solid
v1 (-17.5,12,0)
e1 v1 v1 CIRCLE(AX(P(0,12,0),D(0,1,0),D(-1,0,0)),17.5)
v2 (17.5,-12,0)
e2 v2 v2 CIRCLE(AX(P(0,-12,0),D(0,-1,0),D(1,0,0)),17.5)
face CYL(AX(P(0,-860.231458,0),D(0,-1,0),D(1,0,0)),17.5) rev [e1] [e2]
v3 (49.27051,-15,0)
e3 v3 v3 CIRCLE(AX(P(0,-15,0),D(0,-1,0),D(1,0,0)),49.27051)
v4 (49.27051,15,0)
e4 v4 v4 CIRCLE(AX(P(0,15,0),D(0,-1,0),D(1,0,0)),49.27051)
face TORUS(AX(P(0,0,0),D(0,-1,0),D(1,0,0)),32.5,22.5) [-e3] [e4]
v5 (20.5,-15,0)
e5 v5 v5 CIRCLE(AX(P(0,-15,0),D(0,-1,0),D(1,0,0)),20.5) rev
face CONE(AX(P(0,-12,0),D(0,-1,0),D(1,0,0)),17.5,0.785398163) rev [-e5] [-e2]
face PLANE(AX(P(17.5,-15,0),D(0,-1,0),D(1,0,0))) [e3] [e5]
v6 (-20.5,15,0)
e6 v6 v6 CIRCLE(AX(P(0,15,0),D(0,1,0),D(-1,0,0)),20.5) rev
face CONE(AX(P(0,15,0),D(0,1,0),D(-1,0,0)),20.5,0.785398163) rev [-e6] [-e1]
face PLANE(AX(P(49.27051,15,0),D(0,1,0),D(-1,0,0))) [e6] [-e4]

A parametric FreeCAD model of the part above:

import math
import FreeCAD as App
import Part
import Sketcher
from FreeCAD import Vector
Q = App.Units.Quantity


def edges_at(feature, points):
    """Names of the edges that pass closest to the given points."""
    edges = feature.Shape.Edges
    near = lambda p: min(range(len(edges)), key=lambda i: edges[i].distToShape(Part.Vertex(*p))[0])
    return sorted({f"Edge{near(p) + 1}" for p in points})

doc = App.newDocument("Part")
params = doc.addObject("Spreadsheet::Sheet", "Params")
for row, (alias, value) in enumerate([
    ("sketch1_radius", "22.5 mm"),
    ("sketch1_height", "30 mm"),
    ("revolution_angle", "360 deg"),
    ("chamfer_size", "3 mm"),
], start=1):
    params.set(f"A{row}", alias)
    params.set(f"B{row}", "=" + value)
    params.setAlias(f"B{row}", alias)

body = doc.addObject("PartDesign::Body", "Body")

sketch1 = body.newObject("Sketcher::SketchObject", "Sketch")
sketch1.AttachmentSupport = (doc.getObject("XY_Plane"), [""])
sketch1.MapMode = "FlatFace"
sketch1.addGeometry(Part.LineSegment(Vector(49, 15, 0), Vector(18, 15, 0)), False)
sketch1.addGeometry(Part.LineSegment(Vector(18, 15, 0), Vector(18, -15, 0)), False)
sketch1.addGeometry(Part.LineSegment(Vector(18, -15, 0), Vector(49, -15, 0)), False)
sketch1.addGeometry(Part.ArcOfCircle(Part.Circle(Vector(33, 0, 0), Vector(0, 0, 1), 22), math.radians(-42), math.radians(42)), False)
sketch1.addConstraint(Sketcher.Constraint("Coincident", 0, 2, 1, 1))
sketch1.addConstraint(Sketcher.Constraint("Coincident", 1, 2, 2, 1))
sketch1.addConstraint(Sketcher.Constraint("Coincident", 2, 2, 3, 1))
sketch1.addConstraint(Sketcher.Constraint("Coincident", 3, 2, 0, 1))
sketch1.addConstraint(Sketcher.Constraint("Horizontal", 0))
sketch1.addConstraint(Sketcher.Constraint("Vertical", 1))
sketch1.addConstraint(Sketcher.Constraint("Horizontal", 2))
sketch1.addConstraint(Sketcher.Constraint("Symmetric", 2, 2, 3, 2, -1))
sketch1.addConstraint(Sketcher.Constraint("Radius", 3, Q("22.5 mm")))
sketch1.addConstraint(Sketcher.Constraint("DistanceY", 1, 2, 1, 1, Q("30 mm")))
sketch1.addConstraint(Sketcher.Constraint("DistanceX", 0, 2, 3, 3, Q("15 mm")))
sketch1.addConstraint(Sketcher.Constraint("DistanceX", -1, 1, 3, 3, Q("32.5 mm")))
sketch1.setExpression("Constraints[8]", "Params.sketch1_radius")
sketch1.setExpression("Constraints[9]", "Params.sketch1_height")
revolution = body.newObject("PartDesign::Revolution", "Revolution")
revolution.Profile = sketch1
revolution.ReferenceAxis = (sketch1, ["V_Axis"])
revolution.setExpression("Angle", "Params.revolution_angle")
doc.recompute()

chamfer = body.newObject("PartDesign::Chamfer", "Chamfer")
chamfer.Base = (revolution, edges_at(revolution, [(-17.5, 15, 0), (-17.5, -15, 0)]))
chamfer.setExpression("Size", "Params.chamfer_size")

doc.recompute()
